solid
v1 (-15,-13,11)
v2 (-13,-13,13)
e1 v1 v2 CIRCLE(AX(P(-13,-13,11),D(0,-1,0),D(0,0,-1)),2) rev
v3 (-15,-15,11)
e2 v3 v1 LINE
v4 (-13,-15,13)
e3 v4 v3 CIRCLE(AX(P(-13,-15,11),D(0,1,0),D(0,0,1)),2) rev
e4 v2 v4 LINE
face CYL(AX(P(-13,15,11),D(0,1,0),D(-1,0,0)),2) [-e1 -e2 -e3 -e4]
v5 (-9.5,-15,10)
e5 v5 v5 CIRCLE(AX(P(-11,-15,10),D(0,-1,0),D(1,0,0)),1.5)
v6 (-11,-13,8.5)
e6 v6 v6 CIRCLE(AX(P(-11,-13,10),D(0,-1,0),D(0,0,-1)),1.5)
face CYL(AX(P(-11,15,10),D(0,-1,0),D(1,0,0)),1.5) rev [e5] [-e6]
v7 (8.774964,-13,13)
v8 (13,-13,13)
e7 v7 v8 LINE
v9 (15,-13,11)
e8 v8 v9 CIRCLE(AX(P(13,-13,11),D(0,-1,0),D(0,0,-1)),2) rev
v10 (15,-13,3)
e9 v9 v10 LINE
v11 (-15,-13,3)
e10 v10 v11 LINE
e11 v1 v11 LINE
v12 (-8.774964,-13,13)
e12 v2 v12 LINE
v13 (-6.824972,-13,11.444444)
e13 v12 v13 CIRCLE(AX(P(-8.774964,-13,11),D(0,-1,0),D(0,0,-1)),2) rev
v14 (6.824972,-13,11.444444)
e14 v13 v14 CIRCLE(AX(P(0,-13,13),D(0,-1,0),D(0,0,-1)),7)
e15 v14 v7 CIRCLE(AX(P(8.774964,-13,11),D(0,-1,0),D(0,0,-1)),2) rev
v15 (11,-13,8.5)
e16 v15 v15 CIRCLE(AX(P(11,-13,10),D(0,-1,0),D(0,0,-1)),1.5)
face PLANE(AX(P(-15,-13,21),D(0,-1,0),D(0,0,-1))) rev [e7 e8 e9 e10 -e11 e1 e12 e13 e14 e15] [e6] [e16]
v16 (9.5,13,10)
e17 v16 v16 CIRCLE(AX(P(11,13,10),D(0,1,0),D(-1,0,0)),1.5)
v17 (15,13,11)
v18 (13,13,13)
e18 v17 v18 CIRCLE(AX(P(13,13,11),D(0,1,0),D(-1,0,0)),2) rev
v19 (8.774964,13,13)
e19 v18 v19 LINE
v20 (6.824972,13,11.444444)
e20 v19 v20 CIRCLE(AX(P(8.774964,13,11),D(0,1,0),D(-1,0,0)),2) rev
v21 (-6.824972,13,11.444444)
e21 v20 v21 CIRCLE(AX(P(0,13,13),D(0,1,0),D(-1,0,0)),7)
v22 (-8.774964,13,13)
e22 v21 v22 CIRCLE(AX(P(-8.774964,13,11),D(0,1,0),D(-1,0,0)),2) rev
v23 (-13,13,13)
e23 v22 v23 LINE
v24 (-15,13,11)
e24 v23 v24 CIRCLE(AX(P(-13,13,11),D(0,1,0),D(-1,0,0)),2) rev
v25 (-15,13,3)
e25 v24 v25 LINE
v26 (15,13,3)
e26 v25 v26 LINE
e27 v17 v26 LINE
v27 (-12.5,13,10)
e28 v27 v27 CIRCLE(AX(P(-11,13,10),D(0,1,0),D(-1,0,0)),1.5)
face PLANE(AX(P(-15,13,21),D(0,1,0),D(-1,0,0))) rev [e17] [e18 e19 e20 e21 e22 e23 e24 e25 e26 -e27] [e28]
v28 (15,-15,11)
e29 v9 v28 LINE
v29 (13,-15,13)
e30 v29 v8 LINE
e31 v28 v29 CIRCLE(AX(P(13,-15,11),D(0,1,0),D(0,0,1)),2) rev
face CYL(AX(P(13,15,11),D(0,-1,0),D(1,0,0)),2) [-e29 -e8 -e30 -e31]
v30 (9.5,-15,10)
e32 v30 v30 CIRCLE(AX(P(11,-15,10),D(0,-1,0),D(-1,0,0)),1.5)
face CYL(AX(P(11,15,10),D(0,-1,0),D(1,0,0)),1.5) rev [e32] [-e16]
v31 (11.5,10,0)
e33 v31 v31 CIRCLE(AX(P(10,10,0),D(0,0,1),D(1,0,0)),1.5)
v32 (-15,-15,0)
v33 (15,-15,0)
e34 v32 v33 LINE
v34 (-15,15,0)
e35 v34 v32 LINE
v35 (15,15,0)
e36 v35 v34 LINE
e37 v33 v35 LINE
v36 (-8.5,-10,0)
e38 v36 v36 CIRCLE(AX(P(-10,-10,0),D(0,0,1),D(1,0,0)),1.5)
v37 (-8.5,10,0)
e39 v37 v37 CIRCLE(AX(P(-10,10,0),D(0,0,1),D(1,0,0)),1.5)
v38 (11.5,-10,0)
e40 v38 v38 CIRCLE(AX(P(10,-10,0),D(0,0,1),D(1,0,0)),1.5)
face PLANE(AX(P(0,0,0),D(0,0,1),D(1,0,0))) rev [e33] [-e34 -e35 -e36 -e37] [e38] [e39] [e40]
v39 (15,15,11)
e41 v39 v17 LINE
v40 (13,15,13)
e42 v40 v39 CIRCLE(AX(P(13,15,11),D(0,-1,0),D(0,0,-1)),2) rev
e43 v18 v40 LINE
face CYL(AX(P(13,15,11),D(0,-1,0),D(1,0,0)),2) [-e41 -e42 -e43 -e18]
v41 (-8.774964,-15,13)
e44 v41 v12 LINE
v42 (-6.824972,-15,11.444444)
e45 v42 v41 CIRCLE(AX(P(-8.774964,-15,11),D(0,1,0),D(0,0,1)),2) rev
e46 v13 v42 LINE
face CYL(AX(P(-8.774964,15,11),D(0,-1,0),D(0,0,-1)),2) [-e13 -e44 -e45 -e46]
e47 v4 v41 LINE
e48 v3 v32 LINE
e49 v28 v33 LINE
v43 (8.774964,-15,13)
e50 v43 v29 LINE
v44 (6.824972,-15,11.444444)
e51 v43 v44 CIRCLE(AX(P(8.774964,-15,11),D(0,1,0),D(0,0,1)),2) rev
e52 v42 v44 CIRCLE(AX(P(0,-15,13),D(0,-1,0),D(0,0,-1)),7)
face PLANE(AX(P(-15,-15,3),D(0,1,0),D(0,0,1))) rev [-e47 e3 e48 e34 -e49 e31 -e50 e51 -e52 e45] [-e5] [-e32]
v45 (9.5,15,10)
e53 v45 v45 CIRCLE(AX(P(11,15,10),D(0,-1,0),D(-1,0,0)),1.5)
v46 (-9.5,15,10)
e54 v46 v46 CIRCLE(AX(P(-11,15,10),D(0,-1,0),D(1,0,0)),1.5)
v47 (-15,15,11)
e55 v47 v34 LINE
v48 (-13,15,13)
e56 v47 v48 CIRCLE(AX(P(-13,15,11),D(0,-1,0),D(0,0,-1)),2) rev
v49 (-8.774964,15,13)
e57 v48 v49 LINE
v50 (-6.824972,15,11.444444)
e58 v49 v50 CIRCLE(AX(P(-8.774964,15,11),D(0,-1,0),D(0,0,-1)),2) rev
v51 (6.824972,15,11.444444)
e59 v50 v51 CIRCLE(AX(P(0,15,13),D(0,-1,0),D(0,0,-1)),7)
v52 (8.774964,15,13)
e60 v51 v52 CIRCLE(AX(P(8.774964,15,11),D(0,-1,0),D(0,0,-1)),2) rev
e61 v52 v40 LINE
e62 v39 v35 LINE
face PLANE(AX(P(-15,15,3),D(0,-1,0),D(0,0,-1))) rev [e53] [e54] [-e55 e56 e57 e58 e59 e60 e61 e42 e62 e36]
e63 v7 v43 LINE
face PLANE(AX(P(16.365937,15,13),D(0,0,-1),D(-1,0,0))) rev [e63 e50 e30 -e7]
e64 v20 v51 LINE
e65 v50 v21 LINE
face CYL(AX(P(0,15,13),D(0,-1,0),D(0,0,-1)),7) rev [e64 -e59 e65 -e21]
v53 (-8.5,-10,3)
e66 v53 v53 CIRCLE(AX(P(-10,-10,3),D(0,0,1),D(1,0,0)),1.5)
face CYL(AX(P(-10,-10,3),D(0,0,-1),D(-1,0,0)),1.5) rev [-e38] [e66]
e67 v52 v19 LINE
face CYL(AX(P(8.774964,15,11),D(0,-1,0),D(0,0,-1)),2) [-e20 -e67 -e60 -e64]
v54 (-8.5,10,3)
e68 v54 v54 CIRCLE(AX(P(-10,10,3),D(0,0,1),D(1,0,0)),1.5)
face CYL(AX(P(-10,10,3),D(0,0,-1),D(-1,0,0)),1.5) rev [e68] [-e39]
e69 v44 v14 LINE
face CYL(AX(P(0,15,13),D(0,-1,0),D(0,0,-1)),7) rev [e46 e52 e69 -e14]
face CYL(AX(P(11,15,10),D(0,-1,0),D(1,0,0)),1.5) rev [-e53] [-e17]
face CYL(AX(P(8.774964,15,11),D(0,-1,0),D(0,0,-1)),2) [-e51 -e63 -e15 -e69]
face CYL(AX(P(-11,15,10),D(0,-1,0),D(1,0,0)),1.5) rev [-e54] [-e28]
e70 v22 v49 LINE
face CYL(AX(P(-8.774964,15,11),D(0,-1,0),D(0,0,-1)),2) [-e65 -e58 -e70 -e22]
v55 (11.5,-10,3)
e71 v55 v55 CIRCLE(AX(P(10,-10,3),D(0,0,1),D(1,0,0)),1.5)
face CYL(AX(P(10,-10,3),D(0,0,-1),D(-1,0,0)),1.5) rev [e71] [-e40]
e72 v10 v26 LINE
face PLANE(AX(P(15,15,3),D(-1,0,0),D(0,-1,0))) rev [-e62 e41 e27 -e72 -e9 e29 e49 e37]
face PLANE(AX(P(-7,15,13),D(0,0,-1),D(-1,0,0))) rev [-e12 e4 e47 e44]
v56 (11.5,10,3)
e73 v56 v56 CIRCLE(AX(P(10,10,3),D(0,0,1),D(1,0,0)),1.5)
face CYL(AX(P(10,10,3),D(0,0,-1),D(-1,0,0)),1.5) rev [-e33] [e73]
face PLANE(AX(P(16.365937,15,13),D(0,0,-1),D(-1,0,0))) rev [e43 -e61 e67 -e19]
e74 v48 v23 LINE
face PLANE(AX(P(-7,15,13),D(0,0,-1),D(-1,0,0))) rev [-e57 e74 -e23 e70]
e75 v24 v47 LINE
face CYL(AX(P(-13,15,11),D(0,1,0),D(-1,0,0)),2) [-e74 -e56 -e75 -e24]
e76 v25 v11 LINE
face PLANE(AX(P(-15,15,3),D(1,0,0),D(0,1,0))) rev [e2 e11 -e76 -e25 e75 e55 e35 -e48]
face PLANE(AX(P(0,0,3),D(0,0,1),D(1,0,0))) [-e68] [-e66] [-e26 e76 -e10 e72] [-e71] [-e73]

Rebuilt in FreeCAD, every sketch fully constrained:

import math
import FreeCAD as App
import Part
import Sketcher

V = App.Vector


def edges_at(feature, points):
    """Names of the edges that pass closest to the given points."""
    edges = feature.Shape.Edges
    near = lambda p: min(range(len(edges)), key=lambda i: edges[i].distToShape(Part.Vertex(*p))[0])
    return sorted({f"Edge{near(p) + 1}" for p in points})

doc = App.newDocument("Part")
body = doc.addObject("PartDesign::Body", "Body")

sketch1 = doc.addObject("Sketcher::SketchObject", "Sketch")
body.addObject(sketch1)
sketch1.AttachmentSupport = (doc.XY_Plane, [""])
sketch1.MapMode = "FlatFace"
sketch1.addGeometry([
    Part.LineSegment(V(-15, 15, 0), V(-15, -15, 0)),
    Part.LineSegment(V(-15, -15, 0), V(15, -15, 0)),
    Part.LineSegment(V(15, -15, 0), V(15, 15, 0)),
    Part.LineSegment(V(15, 15, 0), V(-15, 15, 0)),
    Part.Circle(V(-10, -10, 0), V(0, 0, 1), 1.5),
    Part.Circle(V(10, -10, 0), V(0, 0, 1), 1.5),
    Part.Circle(V(-10, 10, 0), V(0, 0, 1), 1.5),
    Part.Circle(V(10, 10, 0), V(0, 0, 1), 1.5),
], False)
sketch1.addConstraint([
    Sketcher.Constraint("Coincident", 0, 2, 1, 1),
    Sketcher.Constraint("Coincident", 1, 2, 2, 1),
    Sketcher.Constraint("Coincident", 2, 2, 3, 1),
    Sketcher.Constraint("Coincident", 3, 2, 0, 1),
    Sketcher.Constraint("Vertical", 0),
    Sketcher.Constraint("Horizontal", 1),
    Sketcher.Constraint("Vertical", 2),
    Sketcher.Constraint("Horizontal", 3),
    Sketcher.Constraint("Equal", 4, 5),
    Sketcher.Constraint("Equal", 5, 6),
    Sketcher.Constraint("Equal", 6, 7),
    Sketcher.Constraint("Symmetric", 5, 3, 6, 3, -1, 1),
    Sketcher.Constraint("Symmetric", 4, 3, 7, 3, -1, 1),
    Sketcher.Constraint("Symmetric", 0, 2, 2, 2, -1, 1),
    Sketcher.Constraint("Symmetric", 4, 3, 5, 3, -2),
    Sketcher.Constraint("Equal", 3, 0),
    Sketcher.Constraint("Diameter", 4, 3.0),
    Sketcher.Constraint("DistanceX", 1, 1, 1, 2, 30.0),
    Sketcher.Constraint("DistanceX", 4, 3, -1, 1, 10.0),
    Sketcher.Constraint("DistanceY", 4, 3, -1, 1, 10.0),
])
pad1 = doc.addObject("PartDesign::Pad", "Pad")
body.addObject(pad1)
pad1.Profile = sketch1
pad1.Length = 3

sketch2 = doc.addObject("Sketcher::SketchObject", "Sketch001")
body.addObject(sketch2)
sketch2.AttachmentSupport = (doc.XY_Plane, [""])
sketch2.MapMode = "FlatFace"
sketch2.AttachmentOffset = App.Placement(V(0, 0, 3), App.Rotation())
sketch2.addGeometry([
    Part.LineSegment(V(-15, 15, 0), V(-15, 13, 0)),
    Part.LineSegment(V(-15, 13, 0), V(15, 13, 0)),
    Part.LineSegment(V(15, 13, 0), V(15, 15, 0)),
    Part.LineSegment(V(15, 15, 0), V(-15, 15, 0)),
    Part.LineSegment(V(-15, -13, 0), V(-15, -15, 0)),
    Part.LineSegment(V(-15, -15, 0), V(15, -15, 0)),
    Part.LineSegment(V(15, -15, 0), V(15, -13, 0)),
    Part.LineSegment(V(15, -13, 0), V(-15, -13, 0)),
], False)
sketch2.addConstraint([
    Sketcher.Constraint("Coincident", 0, 2, 1, 1),
    Sketcher.Constraint("Coincident", 1, 2, 2, 1),
    Sketcher.Constraint("Coincident", 2, 2, 3, 1),
    Sketcher.Constraint("Coincident", 3, 2, 0, 1),
    Sketcher.Constraint("Coincident", 4, 2, 5, 1),
    Sketcher.Constraint("Coincident", 5, 2, 6, 1),
    Sketcher.Constraint("Coincident", 6, 2, 7, 1),
    Sketcher.Constraint("Coincident", 7, 2, 4, 1),
    Sketcher.Constraint("Vertical", 0),
    Sketcher.Constraint("Horizontal", 1),
    Sketcher.Constraint("Vertical", 2),
    Sketcher.Constraint("Horizontal", 3),
    Sketcher.Constraint("Vertical", 4),
    Sketcher.Constraint("Horizontal", 5),
    Sketcher.Constraint("Vertical", 6),
    Sketcher.Constraint("Horizontal", 7),
    Sketcher.Constraint("Symmetric", 2, 2, 4, 2, -1, 1),
    Sketcher.Constraint("Symmetric", 0, 2, 6, 2, -1, 1),
    Sketcher.Constraint("Vertical", 3, 2, 4, 2),
    Sketcher.Constraint("DistanceX", 1, 1, 1, 2, 30.0),
    Sketcher.Constraint("DistanceY", 0, 2, 0, 1, 2.0),
    Sketcher.Constraint("DistanceY", -1, 1, 0, 2, 13.0),
])
pad2 = doc.addObject("PartDesign::Pad", "Pad001")
body.addObject(pad2)
pad2.Profile = sketch2
pad2.Length = 18

sketch3 = doc.addObject("Sketcher::SketchObject", "Sketch002")
body.addObject(sketch3)
sketch3.AttachmentSupport = (doc.XZ_Plane, [""])
sketch3.MapMode = "FlatFace"
sketch3.AttachmentOffset = App.Placement(V(0, 0, -13), App.Rotation())
sketch3.addGeometry([
    Part.Circle(V(-11, 10, 0), V(0, 0, 1), 1.5),
    Part.Circle(V(11, 10, 0), V(0, 0, 1), 1.5),
], False)
sketch3.addConstraint([
    Sketcher.Constraint("Equal", 0, 1),
    Sketcher.Constraint("Symmetric", 0, 3, 1, 3, -2),
    Sketcher.Constraint("Diameter", 0, 3.0),
    Sketcher.Constraint("DistanceX", 0, 3, -1, 1, 11.0),
    Sketcher.Constraint("DistanceY", -1, 1, 0, 3, 10.0),
])
pocket1 = doc.addObject("PartDesign::Pocket", "Pocket")
body.addObject(pocket1)
pocket1.Profile = sketch3
pocket1.Type = "ThroughAll"
pocket1.Midplane = True

sketch4 = doc.addObject("Sketcher::SketchObject", "Sketch003")
body.addObject(sketch4)
sketch4.AttachmentSupport = (doc.XZ_Plane, [""])
sketch4.MapMode = "FlatFace"
sketch4.AttachmentOffset = App.Placement(V(0, 0, 15), App.Rotation())
sketch4.addGeometry([
    Part.LineSegment(V(-16, 13, 0), V(-7, 13, 0)),
    Part.ArcOfCircle(Part.Circle(V(0, 13, 0), V(0, 0, 1), 7), math.radians(180), math.radians(360)),
    Part.LineSegment(V(7, 13, 0), V(16, 13, 0)),
    Part.LineSegment(V(16, 13, 0), V(16, 22, 0)),
    Part.LineSegment(V(16, 22, 0), V(-16, 22, 0)),
    Part.LineSegment(V(-16, 22, 0), V(-16, 13, 0)),
], False)
sketch4.addConstraint([
    Sketcher.Constraint("Coincident", 0, 2, 1, 1),
    Sketcher.Constraint("Coincident", 1, 2, 2, 1),
    Sketcher.Constraint("Coincident", 2, 2, 3, 1),
    Sketcher.Constraint("Coincident", 3, 2, 4, 1),
    Sketcher.Constraint("Coincident", 4, 2, 5, 1),
    Sketcher.Constraint("Coincident", 5, 2, 0, 1),
    Sketcher.Constraint("Horizontal", 0),
    Sketcher.Constraint("Horizontal", 2),
    Sketcher.Constraint("Vertical", 3),
    Sketcher.Constraint("Horizontal", 4),
    Sketcher.Constraint("Vertical", 5),
    Sketcher.Constraint("Symmetric", 0, 2, 1, 2, -2),
    Sketcher.Constraint("Horizontal", 1, 3, 0, 2),
    Sketcher.Constraint("Radius", 1, 7.0),
    Sketcher.Constraint("DistanceY", -1, 1, 1, 3, 13.0),
    Sketcher.Constraint("DistanceY", 3, 1, 3, 2, 9.234659),
    Sketcher.Constraint("DistanceX", 0, 1, 0, 2, 9.491107),
    Sketcher.Constraint("DistanceX", 2, 1, 2, 2, 9.365937),
])
pocket2 = doc.addObject("PartDesign::Pocket", "Pocket001")
body.addObject(pocket2)
pocket2.Profile = sketch4
pocket2.Type = "ThroughAll"
doc.recompute()

fillet = doc.addObject("PartDesign::Fillet", "Fillet")
body.addObject(fillet)
fillet.Base = (pocket2, edges_at(pocket2, [
    (7, 14, 13),
    (7, -14, 13),
    (-15, 14, 13),
    (-7, 14, 13),
    (-15, -14, 13),
    (-7, -14, 13),
    (15, 14, 13),
    (15, -14, 13),
]))
fillet.Radius = 2

doc.recompute()
